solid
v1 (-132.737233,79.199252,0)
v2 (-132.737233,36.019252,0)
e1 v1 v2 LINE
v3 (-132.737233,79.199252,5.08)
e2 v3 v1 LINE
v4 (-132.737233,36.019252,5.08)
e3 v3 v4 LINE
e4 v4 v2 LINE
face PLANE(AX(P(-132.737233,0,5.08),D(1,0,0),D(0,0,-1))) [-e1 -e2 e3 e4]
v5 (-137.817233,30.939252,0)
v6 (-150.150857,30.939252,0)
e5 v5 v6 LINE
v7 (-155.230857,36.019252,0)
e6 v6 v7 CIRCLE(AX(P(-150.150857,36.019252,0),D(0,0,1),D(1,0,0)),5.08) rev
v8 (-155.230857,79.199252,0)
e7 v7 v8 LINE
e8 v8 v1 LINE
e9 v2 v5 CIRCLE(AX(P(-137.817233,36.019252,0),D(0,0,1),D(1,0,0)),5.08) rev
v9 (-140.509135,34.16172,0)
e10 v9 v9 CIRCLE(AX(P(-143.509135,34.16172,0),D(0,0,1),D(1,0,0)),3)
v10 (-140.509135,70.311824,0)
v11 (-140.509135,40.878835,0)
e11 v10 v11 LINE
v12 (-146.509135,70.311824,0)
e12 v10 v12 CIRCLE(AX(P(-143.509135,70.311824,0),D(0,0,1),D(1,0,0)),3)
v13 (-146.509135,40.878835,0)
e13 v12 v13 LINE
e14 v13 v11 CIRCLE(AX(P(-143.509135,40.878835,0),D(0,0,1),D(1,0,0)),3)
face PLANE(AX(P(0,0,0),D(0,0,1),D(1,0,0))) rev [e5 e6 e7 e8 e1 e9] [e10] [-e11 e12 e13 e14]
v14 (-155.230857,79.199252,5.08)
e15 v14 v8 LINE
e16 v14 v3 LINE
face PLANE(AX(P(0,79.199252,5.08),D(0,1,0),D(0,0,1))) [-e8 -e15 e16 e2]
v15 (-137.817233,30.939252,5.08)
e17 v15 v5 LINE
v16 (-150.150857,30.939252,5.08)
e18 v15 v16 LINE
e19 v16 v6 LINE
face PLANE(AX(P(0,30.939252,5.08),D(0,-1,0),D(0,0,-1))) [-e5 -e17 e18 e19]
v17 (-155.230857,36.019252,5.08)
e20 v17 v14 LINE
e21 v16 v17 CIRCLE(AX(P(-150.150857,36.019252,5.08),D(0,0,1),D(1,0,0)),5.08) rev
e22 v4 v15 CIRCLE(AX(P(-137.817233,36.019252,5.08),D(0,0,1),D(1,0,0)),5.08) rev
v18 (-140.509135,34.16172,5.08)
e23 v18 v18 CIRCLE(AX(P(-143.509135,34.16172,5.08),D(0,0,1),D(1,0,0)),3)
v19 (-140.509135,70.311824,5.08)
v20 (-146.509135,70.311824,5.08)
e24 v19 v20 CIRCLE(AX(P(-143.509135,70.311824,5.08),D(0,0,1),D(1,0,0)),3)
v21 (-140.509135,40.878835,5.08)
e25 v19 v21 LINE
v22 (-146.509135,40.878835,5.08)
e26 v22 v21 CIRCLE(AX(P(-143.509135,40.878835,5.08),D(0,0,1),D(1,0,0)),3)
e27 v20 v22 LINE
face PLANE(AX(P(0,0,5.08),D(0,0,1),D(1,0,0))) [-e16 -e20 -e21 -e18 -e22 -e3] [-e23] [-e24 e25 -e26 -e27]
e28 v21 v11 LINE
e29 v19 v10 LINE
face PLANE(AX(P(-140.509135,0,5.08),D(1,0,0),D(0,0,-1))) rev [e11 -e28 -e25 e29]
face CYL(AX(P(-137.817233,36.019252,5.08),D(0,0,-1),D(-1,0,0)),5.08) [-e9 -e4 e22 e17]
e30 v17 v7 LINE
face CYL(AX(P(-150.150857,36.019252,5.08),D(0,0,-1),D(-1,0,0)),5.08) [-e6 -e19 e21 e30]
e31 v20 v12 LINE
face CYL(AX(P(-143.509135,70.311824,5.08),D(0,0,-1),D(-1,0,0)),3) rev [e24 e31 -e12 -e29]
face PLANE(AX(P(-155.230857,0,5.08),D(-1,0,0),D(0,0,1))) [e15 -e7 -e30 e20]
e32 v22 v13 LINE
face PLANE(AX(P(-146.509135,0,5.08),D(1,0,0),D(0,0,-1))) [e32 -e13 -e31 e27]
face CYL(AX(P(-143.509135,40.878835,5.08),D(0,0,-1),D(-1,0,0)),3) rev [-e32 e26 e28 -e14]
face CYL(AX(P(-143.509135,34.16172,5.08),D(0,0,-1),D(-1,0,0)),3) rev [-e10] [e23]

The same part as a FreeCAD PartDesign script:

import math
import FreeCAD as App
import Part
import Sketcher

V = App.Vector
Q = App.Units.Quantity

doc = App.newDocument("Part")
body = doc.addObject("PartDesign::Body", "Body")

# Sketch on XY plane
sketch1 = body.newObject("Sketcher::SketchObject", "Sketch")
sketch1.AttachmentSupport = (doc.getObject("XY_Plane"), [""])
sketch1.MapMode = "FlatFace"
sketch1.addGeometry([
    Part.LineSegment(V(-132.737233, 36.019252, 0), V(-132.737233, 79.199252, 0)),  # 0
    Part.LineSegment(V(-132.737233, 79.199252, 0), V(-155.230857, 79.199252, 0)),  # 1
    Part.LineSegment(V(-155.230857, 79.199252, 0), V(-155.230857, 36.019252, 0)),  # 2
    Part.ArcOfCircle(Part.Circle(V(-150.150857, 36.019252, 0), V(0, 0, 1), 5.08), math.radians(-180), math.radians(-90)),  # 3
    Part.LineSegment(V(-150.150857, 30.939252, 0), V(-137.817233, 30.939252, 0)),  # 4
    Part.ArcOfCircle(Part.Circle(V(-137.817233, 36.019252, 0), V(0, 0, 1), 5.08), math.radians(-90), math.radians(0)),  # 5
    Part.Circle(V(-143.509135, 34.16172, 0), V(0, 0, 1), 3),  # 6
    Part.LineSegment(V(-140.509135, 70.311824, 0), V(-140.509135, 40.878835, 0)),  # 7
    Part.ArcOfCircle(Part.Circle(V(-143.509135, 40.878835, 0), V(0, 0, 1), 3), math.radians(180), math.radians(360)),  # 8
    Part.LineSegment(V(-146.509135, 40.878835, 0), V(-146.509135, 70.311824, 0)),  # 9
    Part.ArcOfCircle(Part.Circle(V(-143.509135, 70.311824, 0), V(0, 0, 1), 3), math.radians(0), math.radians(180)),  # 10
], False)
sketch1.addConstraint([
    Sketcher.Constraint("Coincident", 0, 2, 1, 1),
    Sketcher.Constraint("Coincident", 1, 2, 2, 1),
    Sketcher.Constraint("Tangent", 2, 2, 3, 1),
    Sketcher.Constraint("Tangent", 3, 2, 4, 1),
    Sketcher.Constraint("Tangent", 4, 2, 5, 1),
    Sketcher.Constraint("Tangent", 5, 2, 0, 1),
    Sketcher.Constraint("Tangent", 7, 2, 8, 2),
    Sketcher.Constraint("Tangent", 8, 1, 9, 1),
    Sketcher.Constraint("Tangent", 9, 2, 10, 2),
    Sketcher.Constraint("Tangent", 10, 1, 7, 1),
    Sketcher.Constraint("Vertical", 0),
    Sketcher.Constraint("Horizontal", 1),
    Sketcher.Constraint("Vertical", 2),
    Sketcher.Constraint("Horizontal", 4),
    Sketcher.Constraint("Vertical", 7),
    Sketcher.Constraint("Vertical", 9),
    Sketcher.Constraint("Equal", 3, 5),
    Sketcher.Constraint("Equal", 6, 8),
    Sketcher.Constraint("Vertical", 6, 3, 8, 3),
    Sketcher.Constraint("Radius", 3, Q("0.2 in")),
    Sketcher.Constraint("DistanceY", 0, 1, 0, 2, Q("1.7 in")),
    Sketcher.Constraint("Diameter", 6, Q("6 mm")),
    Sketcher.Constraint("DistanceY", 7, 2, 7, 1, Q("29.43299 mm")),
    Sketcher.Constraint("DistanceX", 6, 3, 5, 3, Q("5.691901 mm")),
    Sketcher.Constraint("DistanceX", 1, 2, 1, 1, Q("22.493624 mm")),
    Sketcher.Constraint("DistanceY", -1, 1, 6, 3, Q("34.16172 mm")),
    Sketcher.Constraint("DistanceY", 6, 3, 5, 3, Q("1.857532 mm")),
    Sketcher.Constraint("DistanceX", 3, 3, -1, 1, Q("150.150857 mm")),
    Sketcher.Constraint("DistanceY", -1, 1, 8, 3, Q("40.878835 mm")),
])
pad1 = body.newObject("PartDesign::Pad", "Pad")
pad1.Profile = sketch1
pad1.Length = Q("0.2 in")

doc.recompute()
